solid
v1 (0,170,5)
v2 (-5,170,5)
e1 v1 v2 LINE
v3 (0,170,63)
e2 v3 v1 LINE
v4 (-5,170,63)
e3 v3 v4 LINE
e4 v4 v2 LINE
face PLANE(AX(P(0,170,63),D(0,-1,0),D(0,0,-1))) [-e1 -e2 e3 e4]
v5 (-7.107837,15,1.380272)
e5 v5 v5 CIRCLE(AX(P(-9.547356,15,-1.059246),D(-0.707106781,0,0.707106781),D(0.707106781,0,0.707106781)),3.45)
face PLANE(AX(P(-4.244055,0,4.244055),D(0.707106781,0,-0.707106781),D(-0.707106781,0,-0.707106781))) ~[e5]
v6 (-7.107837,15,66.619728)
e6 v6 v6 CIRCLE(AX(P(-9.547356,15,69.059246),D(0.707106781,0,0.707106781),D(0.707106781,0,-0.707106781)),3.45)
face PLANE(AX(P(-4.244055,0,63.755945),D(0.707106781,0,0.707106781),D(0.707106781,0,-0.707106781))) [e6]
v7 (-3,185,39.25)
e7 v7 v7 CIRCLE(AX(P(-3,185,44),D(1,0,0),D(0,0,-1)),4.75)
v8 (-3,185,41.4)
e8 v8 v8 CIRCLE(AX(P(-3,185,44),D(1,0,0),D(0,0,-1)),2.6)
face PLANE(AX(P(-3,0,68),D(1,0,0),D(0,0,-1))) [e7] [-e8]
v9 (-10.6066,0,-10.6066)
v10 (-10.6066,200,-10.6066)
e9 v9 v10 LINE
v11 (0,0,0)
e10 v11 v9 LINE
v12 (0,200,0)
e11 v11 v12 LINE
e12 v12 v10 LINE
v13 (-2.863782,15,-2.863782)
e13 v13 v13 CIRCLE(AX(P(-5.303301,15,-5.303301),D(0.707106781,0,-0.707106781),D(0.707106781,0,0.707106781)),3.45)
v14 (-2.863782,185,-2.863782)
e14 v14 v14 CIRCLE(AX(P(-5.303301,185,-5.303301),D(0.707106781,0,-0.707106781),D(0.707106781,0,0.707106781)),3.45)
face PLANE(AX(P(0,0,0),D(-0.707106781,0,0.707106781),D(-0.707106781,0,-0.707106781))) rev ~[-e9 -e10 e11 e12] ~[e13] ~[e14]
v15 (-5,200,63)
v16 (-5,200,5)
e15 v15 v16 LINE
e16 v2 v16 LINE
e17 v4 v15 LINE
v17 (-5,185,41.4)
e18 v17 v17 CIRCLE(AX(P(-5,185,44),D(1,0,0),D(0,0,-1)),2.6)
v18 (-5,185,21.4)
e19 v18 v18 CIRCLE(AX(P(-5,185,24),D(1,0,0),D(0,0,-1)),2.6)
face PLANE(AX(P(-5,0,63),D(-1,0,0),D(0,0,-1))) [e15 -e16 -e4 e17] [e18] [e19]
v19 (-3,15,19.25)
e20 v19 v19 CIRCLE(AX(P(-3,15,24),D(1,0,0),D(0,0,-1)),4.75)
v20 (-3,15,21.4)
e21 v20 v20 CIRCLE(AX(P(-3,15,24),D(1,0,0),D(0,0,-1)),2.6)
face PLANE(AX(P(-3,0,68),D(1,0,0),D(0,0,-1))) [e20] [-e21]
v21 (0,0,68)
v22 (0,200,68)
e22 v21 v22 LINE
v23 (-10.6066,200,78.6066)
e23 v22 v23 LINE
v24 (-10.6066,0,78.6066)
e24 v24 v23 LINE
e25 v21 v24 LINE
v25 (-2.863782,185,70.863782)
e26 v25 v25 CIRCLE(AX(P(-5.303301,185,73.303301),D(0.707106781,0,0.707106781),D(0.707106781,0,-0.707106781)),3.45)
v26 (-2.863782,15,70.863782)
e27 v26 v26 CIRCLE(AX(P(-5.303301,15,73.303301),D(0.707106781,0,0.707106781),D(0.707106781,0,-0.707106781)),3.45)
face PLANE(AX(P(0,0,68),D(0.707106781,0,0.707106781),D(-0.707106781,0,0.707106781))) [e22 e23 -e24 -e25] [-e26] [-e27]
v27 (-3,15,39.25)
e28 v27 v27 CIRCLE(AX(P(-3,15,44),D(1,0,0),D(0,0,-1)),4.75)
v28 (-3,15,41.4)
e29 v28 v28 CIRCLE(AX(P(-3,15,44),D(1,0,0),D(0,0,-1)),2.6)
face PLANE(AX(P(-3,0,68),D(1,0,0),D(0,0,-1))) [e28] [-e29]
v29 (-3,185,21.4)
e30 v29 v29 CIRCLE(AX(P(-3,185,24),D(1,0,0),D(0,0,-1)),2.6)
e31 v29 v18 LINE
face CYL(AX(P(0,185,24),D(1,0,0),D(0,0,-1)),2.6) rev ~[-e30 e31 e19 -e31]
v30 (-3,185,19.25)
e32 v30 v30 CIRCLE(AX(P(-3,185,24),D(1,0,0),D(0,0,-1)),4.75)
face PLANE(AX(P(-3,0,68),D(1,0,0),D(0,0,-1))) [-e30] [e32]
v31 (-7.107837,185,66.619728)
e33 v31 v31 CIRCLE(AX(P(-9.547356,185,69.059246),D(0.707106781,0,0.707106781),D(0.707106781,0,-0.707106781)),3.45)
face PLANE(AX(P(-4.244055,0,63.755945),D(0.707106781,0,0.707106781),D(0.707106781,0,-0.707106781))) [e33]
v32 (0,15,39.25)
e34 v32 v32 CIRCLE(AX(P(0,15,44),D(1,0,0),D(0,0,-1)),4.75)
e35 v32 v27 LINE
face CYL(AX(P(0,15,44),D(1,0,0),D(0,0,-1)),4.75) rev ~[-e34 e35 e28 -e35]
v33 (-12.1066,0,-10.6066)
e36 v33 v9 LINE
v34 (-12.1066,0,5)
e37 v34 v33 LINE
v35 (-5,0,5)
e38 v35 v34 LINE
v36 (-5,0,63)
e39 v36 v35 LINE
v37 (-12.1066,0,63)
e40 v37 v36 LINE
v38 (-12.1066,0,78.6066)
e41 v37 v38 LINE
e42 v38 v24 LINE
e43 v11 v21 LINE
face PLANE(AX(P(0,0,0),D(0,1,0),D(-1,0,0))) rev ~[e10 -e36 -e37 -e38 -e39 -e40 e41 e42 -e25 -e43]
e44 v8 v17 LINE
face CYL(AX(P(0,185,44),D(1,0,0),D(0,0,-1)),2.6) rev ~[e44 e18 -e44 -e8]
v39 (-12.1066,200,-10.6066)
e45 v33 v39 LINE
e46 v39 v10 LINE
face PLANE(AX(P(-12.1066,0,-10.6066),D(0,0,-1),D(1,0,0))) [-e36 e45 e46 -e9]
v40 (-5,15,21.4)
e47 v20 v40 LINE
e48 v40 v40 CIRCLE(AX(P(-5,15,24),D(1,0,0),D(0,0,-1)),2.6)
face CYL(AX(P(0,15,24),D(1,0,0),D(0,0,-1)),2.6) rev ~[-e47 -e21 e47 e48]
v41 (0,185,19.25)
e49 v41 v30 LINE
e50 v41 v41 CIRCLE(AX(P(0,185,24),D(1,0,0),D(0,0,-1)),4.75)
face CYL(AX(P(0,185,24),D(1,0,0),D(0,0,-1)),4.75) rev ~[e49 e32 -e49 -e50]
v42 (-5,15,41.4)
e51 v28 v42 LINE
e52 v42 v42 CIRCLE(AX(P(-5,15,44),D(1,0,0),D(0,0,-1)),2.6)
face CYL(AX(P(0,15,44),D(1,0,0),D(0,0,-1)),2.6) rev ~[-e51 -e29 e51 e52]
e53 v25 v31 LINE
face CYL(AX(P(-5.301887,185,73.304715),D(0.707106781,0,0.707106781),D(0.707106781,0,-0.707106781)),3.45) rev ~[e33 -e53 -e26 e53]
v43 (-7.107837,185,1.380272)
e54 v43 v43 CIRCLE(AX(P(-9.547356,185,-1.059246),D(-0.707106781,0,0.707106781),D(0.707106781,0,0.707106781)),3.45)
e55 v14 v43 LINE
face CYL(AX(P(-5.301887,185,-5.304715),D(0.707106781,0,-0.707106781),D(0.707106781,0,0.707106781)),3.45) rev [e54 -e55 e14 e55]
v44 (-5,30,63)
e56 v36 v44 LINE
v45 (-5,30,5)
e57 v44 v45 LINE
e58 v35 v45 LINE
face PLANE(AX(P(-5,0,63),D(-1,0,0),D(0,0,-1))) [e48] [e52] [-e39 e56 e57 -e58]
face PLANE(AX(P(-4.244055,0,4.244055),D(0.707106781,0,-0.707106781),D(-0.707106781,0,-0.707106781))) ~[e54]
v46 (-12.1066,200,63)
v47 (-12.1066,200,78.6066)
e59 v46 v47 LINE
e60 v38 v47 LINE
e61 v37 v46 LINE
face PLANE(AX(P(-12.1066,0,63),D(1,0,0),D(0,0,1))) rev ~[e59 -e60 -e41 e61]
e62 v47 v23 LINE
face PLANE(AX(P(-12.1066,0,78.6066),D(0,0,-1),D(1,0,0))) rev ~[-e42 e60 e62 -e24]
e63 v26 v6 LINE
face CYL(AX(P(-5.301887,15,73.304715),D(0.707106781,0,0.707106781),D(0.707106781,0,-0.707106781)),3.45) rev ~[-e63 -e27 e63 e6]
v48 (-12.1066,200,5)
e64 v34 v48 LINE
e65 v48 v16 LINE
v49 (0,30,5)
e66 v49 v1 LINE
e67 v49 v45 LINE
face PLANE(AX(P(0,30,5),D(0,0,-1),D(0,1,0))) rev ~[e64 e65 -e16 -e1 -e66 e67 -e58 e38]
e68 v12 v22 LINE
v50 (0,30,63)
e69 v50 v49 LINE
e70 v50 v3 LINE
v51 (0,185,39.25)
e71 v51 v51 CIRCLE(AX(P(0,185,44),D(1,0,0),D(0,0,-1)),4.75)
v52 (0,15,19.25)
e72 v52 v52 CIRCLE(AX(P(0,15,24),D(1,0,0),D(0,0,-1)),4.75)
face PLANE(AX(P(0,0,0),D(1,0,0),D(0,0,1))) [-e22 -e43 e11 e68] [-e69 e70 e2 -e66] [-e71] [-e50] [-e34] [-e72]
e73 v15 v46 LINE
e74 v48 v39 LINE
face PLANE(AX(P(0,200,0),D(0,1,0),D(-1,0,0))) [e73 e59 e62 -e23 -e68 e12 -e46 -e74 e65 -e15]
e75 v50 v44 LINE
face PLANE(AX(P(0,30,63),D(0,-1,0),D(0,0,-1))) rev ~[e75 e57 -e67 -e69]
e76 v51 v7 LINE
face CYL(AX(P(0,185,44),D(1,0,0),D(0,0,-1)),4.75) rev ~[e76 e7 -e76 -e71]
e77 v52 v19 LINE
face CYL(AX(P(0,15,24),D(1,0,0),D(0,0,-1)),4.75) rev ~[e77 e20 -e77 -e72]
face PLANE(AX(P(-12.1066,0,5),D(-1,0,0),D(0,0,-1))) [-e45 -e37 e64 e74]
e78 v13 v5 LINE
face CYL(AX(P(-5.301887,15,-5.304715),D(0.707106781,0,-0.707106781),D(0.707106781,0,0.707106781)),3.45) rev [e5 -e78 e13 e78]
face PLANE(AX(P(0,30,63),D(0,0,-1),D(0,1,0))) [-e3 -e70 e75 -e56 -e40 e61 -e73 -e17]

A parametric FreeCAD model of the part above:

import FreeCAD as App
import Part
import Sketcher

V = App.Vector

doc = App.newDocument("Part")
params = doc.addObject("Spreadsheet::Sheet", "Params")
for row, (alias, value) in enumerate([
    ("sketch1_height", "68 mm"),
    ("sketch1_length", "15 mm"),
    ("sketch1_width", "1.5 mm"),
    ("pad1_length", "200 mm"),
    ("sketch2_diameter", "6.9 mm"),
    ("pocket1_length", "6 mm"),
    ("sketch3_diameter", "5.2 mm"),
    ("sketch4_width", "140 mm"),
    ("sketch4_height", "58 mm"),
    ("sketch5_diameter", "9.5 mm"),
    ("sketch5_diameter2", "5.2 mm"),
    ("pocket4_length", "3 mm"),
], start=1):
    params.set(f"A{row}", alias)
    params.set(f"B{row}", "=" + value)
    params.setAlias(f"B{row}", alias)

body = doc.addObject("PartDesign::Body", "Body")

# Sketch on XZ plane
sketch1 = body.newObject("Sketcher::SketchObject", "Sketch")
sketch1.AttachmentSupport = (doc.getObject("XZ_Plane"), [""])
sketch1.MapMode = "FlatFace"
sketch1.addGeometry([
    Part.LineSegment(V(0, 68, 0), V(0, 0, 0)),  # 0
    Part.LineSegment(V(0, 0, 0), V(-10.6, -10.6, 0)),  # 1
    Part.LineSegment(V(-10.6, -10.6, 0), V(-12.1, -10.6, 0)),  # 2
    Part.LineSegment(V(-12.1, -10.6, 0), V(-12.1, 5, 0)),  # 3
    Part.LineSegment(V(-12.1, 5, 0), V(-5, 5, 0)),  # 4
    Part.LineSegment(V(-5, 5, 0), V(-5, 63, 0)),  # 5
    Part.LineSegment(V(-5, 63, 0), V(-12.1, 63, 0)),  # 6
    Part.LineSegment(V(-12.1, 63, 0), V(-12.1, 78.6, 0)),  # 7
    Part.LineSegment(V(-12.1, 78.6, 0), V(-10.6, 78.6, 0)),  # 8
    Part.LineSegment(V(-10.6, 78.6, 0), V(0, 68, 0)),  # 9
], False)
sketch1.addConstraint([
    Sketcher.Constraint("Coincident", 0, 2, 1, 1),
    Sketcher.Constraint("Coincident", 1, 2, 2, 1),
    Sketcher.Constraint("Coincident", 2, 2, 3, 1),
    Sketcher.Constraint("Coincident", 3, 2, 4, 1),
    Sketcher.Constraint("Coincident", 4, 2, 5, 1),
    Sketcher.Constraint("Coincident", 5, 2, 6, 1),
    Sketcher.Constraint("Coincident", 6, 2, 7, 1),
    Sketcher.Constraint("Coincident", 7, 2, 8, 1),
    Sketcher.Constraint("Coincident", 8, 2, 9, 1),
    Sketcher.Constraint("Coincident", 9, 2, 0, 1),
    Sketcher.Constraint("Vertical", 0),
    Sketcher.Constraint("Horizontal", 2),
    Sketcher.Constraint("Vertical", 3),
    Sketcher.Constraint("Horizontal", 4),
    Sketcher.Constraint("Vertical", 5),
    Sketcher.Constraint("Horizontal", 6),
    Sketcher.Constraint("Vertical", 7),
    Sketcher.Constraint("Horizontal", 8),
    Sketcher.Constraint("Coincident", 0, 2, -1, 1),
    Sketcher.Constraint("Perpendicular", 1, 9),
    Sketcher.Constraint("Vertical", 3, 2, 6, 2),
    Sketcher.Constraint("Vertical", 1, 2, 8, 2),
    Sketcher.Constraint("Equal", 3, 7),
    Sketcher.Constraint("Equal", 1, 9),
    Sketcher.Constraint("DistanceY", 0, 2, 0, 1, 68.0),
    Sketcher.Constraint("Distance", 1, 15.0),
    Sketcher.Constraint("DistanceX", 2, 2, 2, 1, 1.5),
    Sketcher.Constraint("DistanceY", -1, 1, 3, 2, 5.0),
    Sketcher.Constraint("DistanceX", 4, 2, -1, 1, 5.0),
])
sketch1.setExpression("Constraints[24]", "Params.sketch1_height")
sketch1.setExpression("Constraints[25]", "Params.sketch1_length")
sketch1.setExpression("Constraints[26]", "Params.sketch1_width")
pad1 = body.newObject("PartDesign::Pad", "Pad")
pad1.Profile = sketch1
pad1.setExpression("Length", "Params.pad1_length")
pad1.Reversed = True

# Sketch on an angled plane
sketch2 = body.newObject("Sketcher::SketchObject", "Sketch001")
sketch2.Placement = App.Placement(V(0, 0, 68), App.Rotation(V(0.707106781, 0, -0.707106781), V(0, 0.999999999, 0), V(0.707106781, 0, 0.707106781), "ZXY"))
sketch2.addGeometry([
    Part.Circle(V(-7.5, 185, 0), V(0, 0, 1), 3.5),
    Part.Circle(V(-7.5, 15, 0), V(0, 0, 1), 3.5),
], False)
sketch2.addConstraint([
    Sketcher.Constraint("Equal", 0, 1),
    Sketcher.Constraint("Vertical", 0, 3, 1, 3),
    Sketcher.Constraint("Diameter", 0, 6.9),
    Sketcher.Constraint("DistanceY", -1, 1, 1, 3, 15.0),
    Sketcher.Constraint("DistanceY", -1, 1, 0, 3, 185.0),
    Sketcher.Constraint("DistanceX", 0, 3, -1, 1, 7.5),
])
sketch2.setExpression("Constraints[2]", "Params.sketch2_diameter")
pocket1 = body.newObject("PartDesign::Pocket", "Pocket")
pocket1.Profile = sketch2
pocket1.setExpression("Length", "Params.pocket1_length")

# Sketch on YZ plane
sketch3 = body.newObject("Sketcher::SketchObject", "Sketch002")
sketch3.AttachmentSupport = (doc.getObject("YZ_Plane"), [""])
sketch3.MapMode = "FlatFace"
sketch3.addGeometry([
    Part.Circle(V(185, 24, 0), V(0, 0, 1), 2.6),
    Part.Circle(V(185, 44, 0), V(0, 0, 1), 2.6),
    Part.Circle(V(15, 44, 0), V(0, 0, 1), 2.6),
    Part.Circle(V(15, 24, 0), V(0, 0, 1), 2.6),
], False)
sketch3.addConstraint([
    Sketcher.Constraint("Equal", 0, 1),
    Sketcher.Constraint("Equal", 1, 2),
    Sketcher.Constraint("Equal", 2, 3),
    Sketcher.Constraint("Horizontal", 1, 3, 2, 3),
    Sketcher.Constraint("Horizontal", 0, 3, 3, 3),
    Sketcher.Constraint("Vertical", 0, 3, 1, 3),
    Sketcher.Constraint("Vertical", 2, 3, 3, 3),
    Sketcher.Constraint("Diameter", 0, 5.2),
    Sketcher.Constraint("DistanceX", -1, 1, 0, 3, 185.0),
    Sketcher.Constraint("DistanceY", -1, 1, 0, 3, 24.0),
    Sketcher.Constraint("DistanceY", -1, 1, 1, 3, 44.0),
    Sketcher.Constraint("DistanceX", -1, 1, 2, 3, 15.0),
])
sketch3.setExpression("Constraints[7]", "Params.sketch3_diameter")
pocket2 = body.newObject("PartDesign::Pocket", "Pocket001")
pocket2.Profile = sketch3
pocket2.Type = "UpToFirst"

# Sketch on YZ plane
sketch4 = body.newObject("Sketcher::SketchObject", "Sketch003")
sketch4.AttachmentSupport = (doc.getObject("YZ_Plane"), [""])
sketch4.MapMode = "FlatFace"
sketch4.addGeometry([
    Part.LineSegment(V(170, 63, 0), V(30, 63, 0)),
    Part.LineSegment(V(30, 63, 0), V(30, 5, 0)),
    Part.LineSegment(V(30, 5, 0), V(170, 5, 0)),
    Part.LineSegment(V(170, 5, 0), V(170, 63, 0)),
], False)
sketch4.addConstraint([
    Sketcher.Constraint("Coincident", 0, 2, 1, 1),
    Sketcher.Constraint("Coincident", 1, 2, 2, 1),
    Sketcher.Constraint("Coincident", 2, 2, 3, 1),
    Sketcher.Constraint("Coincident", 3, 2, 0, 1),
    Sketcher.Constraint("Horizontal", 0),
    Sketcher.Constraint("Vertical", 1),
    Sketcher.Constraint("Horizontal", 2),
    Sketcher.Constraint("Vertical", 3),
    Sketcher.Constraint("DistanceX", 0, 2, 0, 1, 140.0),
    Sketcher.Constraint("DistanceY", 1, 2, 1, 1, 58.0),
    Sketcher.Constraint("DistanceX", -1, 1, 0, 2, 30.0),
    Sketcher.Constraint("DistanceY", -1, 1, 0, 2, 63.0),
])
sketch4.setExpression("Constraints[8]", "Params.sketch4_width")
sketch4.setExpression("Constraints[9]", "Params.sketch4_height")
pocket3 = body.newObject("PartDesign::Pocket", "Pocket002")
pocket3.Profile = sketch4
pocket3.Type = "UpToFirst"

# Sketch on YZ plane
sketch5 = body.newObject("Sketcher::SketchObject", "Sketch004")
sketch5.AttachmentSupport = (doc.getObject("YZ_Plane"), [""])
sketch5.MapMode = "FlatFace"
sketch5.addGeometry([
    Part.Circle(V(185, 44, 0), V(0, 0, 1), 4.8),  # 0
    Part.Circle(V(185, 44, 0), V(0, 0, 1), 2.6),  # 1
    Part.Circle(V(185, 24, 0), V(0, 0, 1), 4.8),  # 2
    Part.Circle(V(185, 24, 0), V(0, 0, 1), 2.6),  # 3
    Part.Circle(V(15, 44, 0), V(0, 0, 1), 4.8),  # 4
    Part.Circle(V(15, 44, 0), V(0, 0, 1), 2.6),  # 5
    Part.Circle(V(15, 24, 0), V(0, 0, 1), 4.8),  # 6
    Part.Circle(V(15, 24, 0), V(0, 0, 1), 2.6),  # 7
], False)
sketch5.addConstraint([
    Sketcher.Constraint("Coincident", 1, 3, 0, 3),
    Sketcher.Constraint("Coincident", 3, 3, 2, 3),
    Sketcher.Constraint("Coincident", 5, 3, 4, 3),
    Sketcher.Constraint("Coincident", 7, 3, 6, 3),
    Sketcher.Constraint("Equal", 0, 2),
    Sketcher.Constraint("Equal", 1, 3),
    Sketcher.Constraint("Equal", 2, 4),
    Sketcher.Constraint("Equal", 3, 5),
    Sketcher.Constraint("Equal", 4, 6),
    Sketcher.Constraint("Equal", 5, 7),
    Sketcher.Constraint("Horizontal", 1, 3, 4, 3),
    Sketcher.Constraint("Horizontal", 3, 3, 6, 3),
    Sketcher.Constraint("Vertical", 1, 3, 2, 3),
    Sketcher.Constraint("Vertical", 5, 3, 6, 3),
    Sketcher.Constraint("Diameter", 0, 9.5),
    Sketcher.Constraint("Diameter", 1, 5.2),
    Sketcher.Constraint("DistanceX", -1, 1, 0, 3, 185.0),
    Sketcher.Constraint("DistanceY", -1, 1, 0, 3, 44.0),
    Sketcher.Constraint("DistanceY", -1, 1, 2, 3, 24.0),
    Sketcher.Constraint("DistanceX", -1, 1, 4, 3, 15.0),
])
sketch5.setExpression("Constraints[14]", "Params.sketch5_diameter")
sketch5.setExpression("Constraints[15]", "Params.sketch5_diameter2")
pocket4 = body.newObject("PartDesign::Pocket", "Pocket003")
pocket4.Profile = sketch5
pocket4.setExpression("Length", "Params.pocket4_length")
doc.recompute()

datumplane = body.newObject("PartDesign::Plane", "DatumPlane")
datumplane.AttachmentSupport = (doc.getObject("XY_Plane"), [""])
datumplane.MapMode = "FlatFace"
datumplane.AttachmentOffset = App.Placement(V(0, 0, 34), App.Rotation())
mirrored = body.newObject("PartDesign::Mirrored", "Mirrored")
mirrored.Originals = [pocket1]
mirrored.MirrorPlane = (datumplane, [""])
body.Tip = mirrored

doc.recompute()
